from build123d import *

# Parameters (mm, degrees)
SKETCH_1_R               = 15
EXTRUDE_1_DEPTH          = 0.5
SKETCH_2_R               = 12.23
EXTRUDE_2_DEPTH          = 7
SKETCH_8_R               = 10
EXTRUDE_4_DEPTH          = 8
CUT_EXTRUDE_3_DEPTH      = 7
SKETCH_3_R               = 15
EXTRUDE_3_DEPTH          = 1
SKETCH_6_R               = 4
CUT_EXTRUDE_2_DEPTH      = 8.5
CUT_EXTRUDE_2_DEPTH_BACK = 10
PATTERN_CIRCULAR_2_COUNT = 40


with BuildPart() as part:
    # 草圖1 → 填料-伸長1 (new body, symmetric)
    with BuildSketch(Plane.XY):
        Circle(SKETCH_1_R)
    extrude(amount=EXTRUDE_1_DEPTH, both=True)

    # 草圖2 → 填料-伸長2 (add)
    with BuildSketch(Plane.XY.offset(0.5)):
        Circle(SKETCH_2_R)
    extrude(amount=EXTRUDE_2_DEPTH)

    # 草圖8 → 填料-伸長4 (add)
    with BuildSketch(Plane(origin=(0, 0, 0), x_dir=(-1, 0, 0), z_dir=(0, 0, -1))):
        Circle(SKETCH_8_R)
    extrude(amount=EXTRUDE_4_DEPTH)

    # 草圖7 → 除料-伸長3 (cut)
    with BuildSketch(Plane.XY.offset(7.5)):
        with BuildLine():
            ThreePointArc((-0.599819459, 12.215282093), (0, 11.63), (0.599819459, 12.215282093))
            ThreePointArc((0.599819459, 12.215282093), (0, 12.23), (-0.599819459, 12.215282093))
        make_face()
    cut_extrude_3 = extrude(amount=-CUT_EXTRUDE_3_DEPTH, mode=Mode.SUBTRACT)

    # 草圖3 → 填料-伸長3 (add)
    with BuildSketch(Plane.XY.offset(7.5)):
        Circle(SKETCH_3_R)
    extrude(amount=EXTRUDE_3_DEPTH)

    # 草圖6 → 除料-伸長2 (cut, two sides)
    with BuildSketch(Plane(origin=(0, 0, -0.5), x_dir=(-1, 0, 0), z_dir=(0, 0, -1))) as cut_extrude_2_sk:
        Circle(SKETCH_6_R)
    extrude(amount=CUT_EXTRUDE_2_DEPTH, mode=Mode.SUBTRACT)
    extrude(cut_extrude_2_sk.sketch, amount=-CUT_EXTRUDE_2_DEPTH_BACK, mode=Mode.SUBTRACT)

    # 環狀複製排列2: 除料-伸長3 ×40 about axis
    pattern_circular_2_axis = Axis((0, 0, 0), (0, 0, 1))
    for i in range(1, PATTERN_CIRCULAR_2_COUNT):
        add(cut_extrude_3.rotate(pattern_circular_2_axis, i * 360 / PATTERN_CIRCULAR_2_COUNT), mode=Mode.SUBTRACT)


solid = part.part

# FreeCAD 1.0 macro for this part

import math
import FreeCAD as App
import Part
import Sketcher
from FreeCAD import Vector

doc = App.newDocument("Part")
body = doc.addObject("PartDesign::Body", "Body")

# Sketch on XY plane
sketch1 = doc.addObject("Sketcher::SketchObject", "Sketch")
body.addObject(sketch1)
sketch1.AttachmentSupport = (doc.XY_Plane, [""])
sketch1.MapMode = "FlatFace"
sketch1.addGeometry(Part.Circle(Vector(0, 0, 0), Vector(0, 0, 1), 15), False)
sketch1.addConstraint([
    Sketcher.Constraint("Coincident", 0, 3, -1, 1),
    Sketcher.Constraint("Diameter", 0, 30.0),
])
pad1 = doc.addObject("PartDesign::Pad", "Pad")
body.addObject(pad1)
pad1.Profile = sketch1
pad1.Length = 1
pad1.Midplane = True

# Sketch on XY plane
sketch2 = doc.addObject("Sketcher::SketchObject", "Sketch001")
body.addObject(sketch2)
sketch2.AttachmentSupport = (doc.XY_Plane, [""])
sketch2.MapMode = "FlatFace"
sketch2.AttachmentOffset = App.Placement(Vector(0, 0, 0.5), App.Rotation())
sketch2.addGeometry(Part.Circle(Vector(0, 0, 0), Vector(0, 0, 1), 12.23), False)
sketch2.addConstraint([
    Sketcher.Constraint("Coincident", 0, 3, -1, 1),
    Sketcher.Constraint("Diameter", 0, 24.46),
])
pad2 = doc.addObject("PartDesign::Pad", "Pad001")
body.addObject(pad2)
pad2.Profile = sketch2
pad2.Length = 7

# Sketch on XY plane
sketch3 = doc.addObject("Sketcher::SketchObject", "Sketch002")
body.addObject(sketch3)
sketch3.AttachmentSupport = (doc.XY_Plane, [""])
sketch3.MapMode = "FlatFace"
sketch3.addGeometry(Part.Circle(Vector(0, 0, 0), Vector(0, 0, 1), 10), False)
sketch3.addConstraint([
    Sketcher.Constraint("Coincident", 0, 3, -1, 1),
    Sketcher.Constraint("Diameter", 0, 20.0),
])
pad3 = doc.addObject("PartDesign::Pad", "Pad002")
body.addObject(pad3)
pad3.Profile = sketch3
pad3.Length = 8
pad3.Reversed = True

# Sketch on XY plane
sketch4 = doc.addObject("Sketcher::SketchObject", "Sketch003")
body.addObject(sketch4)
sketch4.AttachmentSupport = (doc.XY_Plane, [""])
sketch4.MapMode = "FlatFace"
sketch4.AttachmentOffset = App.Placement(Vector(0, 0, 7.5), App.Rotation())
sketch4.addGeometry([
    Part.ArcOfCircle(Part.Circle(Vector(0, 12.23, 0), Vector(0, 0, 1), 0.6), math.radians(-178.594402), math.radians(-1.405598)),
    Part.ArcOfCircle(Part.Circle(Vector(0, 0, 0), Vector(0, 0, 1), 12.23), math.radians(87.188805), math.radians(92.811195)),
], False)
sketch4.addConstraint([
    Sketcher.Constraint("Coincident", 0, 1, 1, 2),
    Sketcher.Constraint("Coincident", 1, 1, 0, 2),
    Sketcher.Constraint("Coincident", 1, 3, -1, 1),
    Sketcher.Constraint("PointOnObject", 0, 3, -2),
    Sketcher.Constraint("Radius", 0, 0.6),
    Sketcher.Constraint("Radius", 1, 12.23),
    Sketcher.Constraint("DistanceY", -1, 1, 0, 3, 12.23),
])
pocket1 = doc.addObject("PartDesign::Pocket", "Pocket")
body.addObject(pocket1)
pocket1.Profile = sketch4
pocket1.Length = 7

# Sketch on XY plane
sketch5 = doc.addObject("Sketcher::SketchObject", "Sketch004")
body.addObject(sketch5)
sketch5.AttachmentSupport = (doc.XY_Plane, [""])
sketch5.MapMode = "FlatFace"
sketch5.AttachmentOffset = App.Placement(Vector(0, 0, 7.5), App.Rotation())
sketch5.addGeometry(Part.Circle(Vector(0, 0, 0), Vector(0, 0, 1), 15), False)
sketch5.addConstraint([
    Sketcher.Constraint("Coincident", 0, 3, -1, 1),
    Sketcher.Constraint("Diameter", 0, 30.0),
])
pad4 = doc.addObject("PartDesign::Pad", "Pad003")
body.addObject(pad4)
pad4.Profile = sketch5
pad4.Length = 1

# Sketch on XY plane
sketch6 = doc.addObject("Sketcher::SketchObject", "Sketch005")
body.addObject(sketch6)
sketch6.AttachmentSupport = (doc.XY_Plane, [""])
sketch6.MapMode = "FlatFace"
sketch6.AttachmentOffset = App.Placement(Vector(0, 0, -0.5), App.Rotation())
sketch6.addGeometry(Part.Circle(Vector(0, 0, 0), Vector(0, 0, 1), 4), False)
sketch6.addConstraint([
    Sketcher.Constraint("Coincident", 0, 3, -1, 1),
    Sketcher.Constraint("Diameter", 0, 8.0),
])
pocket2 = doc.addObject("PartDesign::Pocket", "Pocket001")
body.addObject(pocket2)
pocket2.Profile = sketch6
pocket2.Type = "ThroughAll"
pocket2.Midplane = True
doc.recompute()

polarpattern = doc.addObject("PartDesign::PolarPattern", "PolarPattern")
body.addObject(polarpattern)
polarpattern.Originals = [pocket1]
polarpattern.Axis = (doc.Z_Axis, [""])
polarpattern.Angle = 360
polarpattern.Occurrences = 40
body.Tip = polarpattern

doc.recompute()
